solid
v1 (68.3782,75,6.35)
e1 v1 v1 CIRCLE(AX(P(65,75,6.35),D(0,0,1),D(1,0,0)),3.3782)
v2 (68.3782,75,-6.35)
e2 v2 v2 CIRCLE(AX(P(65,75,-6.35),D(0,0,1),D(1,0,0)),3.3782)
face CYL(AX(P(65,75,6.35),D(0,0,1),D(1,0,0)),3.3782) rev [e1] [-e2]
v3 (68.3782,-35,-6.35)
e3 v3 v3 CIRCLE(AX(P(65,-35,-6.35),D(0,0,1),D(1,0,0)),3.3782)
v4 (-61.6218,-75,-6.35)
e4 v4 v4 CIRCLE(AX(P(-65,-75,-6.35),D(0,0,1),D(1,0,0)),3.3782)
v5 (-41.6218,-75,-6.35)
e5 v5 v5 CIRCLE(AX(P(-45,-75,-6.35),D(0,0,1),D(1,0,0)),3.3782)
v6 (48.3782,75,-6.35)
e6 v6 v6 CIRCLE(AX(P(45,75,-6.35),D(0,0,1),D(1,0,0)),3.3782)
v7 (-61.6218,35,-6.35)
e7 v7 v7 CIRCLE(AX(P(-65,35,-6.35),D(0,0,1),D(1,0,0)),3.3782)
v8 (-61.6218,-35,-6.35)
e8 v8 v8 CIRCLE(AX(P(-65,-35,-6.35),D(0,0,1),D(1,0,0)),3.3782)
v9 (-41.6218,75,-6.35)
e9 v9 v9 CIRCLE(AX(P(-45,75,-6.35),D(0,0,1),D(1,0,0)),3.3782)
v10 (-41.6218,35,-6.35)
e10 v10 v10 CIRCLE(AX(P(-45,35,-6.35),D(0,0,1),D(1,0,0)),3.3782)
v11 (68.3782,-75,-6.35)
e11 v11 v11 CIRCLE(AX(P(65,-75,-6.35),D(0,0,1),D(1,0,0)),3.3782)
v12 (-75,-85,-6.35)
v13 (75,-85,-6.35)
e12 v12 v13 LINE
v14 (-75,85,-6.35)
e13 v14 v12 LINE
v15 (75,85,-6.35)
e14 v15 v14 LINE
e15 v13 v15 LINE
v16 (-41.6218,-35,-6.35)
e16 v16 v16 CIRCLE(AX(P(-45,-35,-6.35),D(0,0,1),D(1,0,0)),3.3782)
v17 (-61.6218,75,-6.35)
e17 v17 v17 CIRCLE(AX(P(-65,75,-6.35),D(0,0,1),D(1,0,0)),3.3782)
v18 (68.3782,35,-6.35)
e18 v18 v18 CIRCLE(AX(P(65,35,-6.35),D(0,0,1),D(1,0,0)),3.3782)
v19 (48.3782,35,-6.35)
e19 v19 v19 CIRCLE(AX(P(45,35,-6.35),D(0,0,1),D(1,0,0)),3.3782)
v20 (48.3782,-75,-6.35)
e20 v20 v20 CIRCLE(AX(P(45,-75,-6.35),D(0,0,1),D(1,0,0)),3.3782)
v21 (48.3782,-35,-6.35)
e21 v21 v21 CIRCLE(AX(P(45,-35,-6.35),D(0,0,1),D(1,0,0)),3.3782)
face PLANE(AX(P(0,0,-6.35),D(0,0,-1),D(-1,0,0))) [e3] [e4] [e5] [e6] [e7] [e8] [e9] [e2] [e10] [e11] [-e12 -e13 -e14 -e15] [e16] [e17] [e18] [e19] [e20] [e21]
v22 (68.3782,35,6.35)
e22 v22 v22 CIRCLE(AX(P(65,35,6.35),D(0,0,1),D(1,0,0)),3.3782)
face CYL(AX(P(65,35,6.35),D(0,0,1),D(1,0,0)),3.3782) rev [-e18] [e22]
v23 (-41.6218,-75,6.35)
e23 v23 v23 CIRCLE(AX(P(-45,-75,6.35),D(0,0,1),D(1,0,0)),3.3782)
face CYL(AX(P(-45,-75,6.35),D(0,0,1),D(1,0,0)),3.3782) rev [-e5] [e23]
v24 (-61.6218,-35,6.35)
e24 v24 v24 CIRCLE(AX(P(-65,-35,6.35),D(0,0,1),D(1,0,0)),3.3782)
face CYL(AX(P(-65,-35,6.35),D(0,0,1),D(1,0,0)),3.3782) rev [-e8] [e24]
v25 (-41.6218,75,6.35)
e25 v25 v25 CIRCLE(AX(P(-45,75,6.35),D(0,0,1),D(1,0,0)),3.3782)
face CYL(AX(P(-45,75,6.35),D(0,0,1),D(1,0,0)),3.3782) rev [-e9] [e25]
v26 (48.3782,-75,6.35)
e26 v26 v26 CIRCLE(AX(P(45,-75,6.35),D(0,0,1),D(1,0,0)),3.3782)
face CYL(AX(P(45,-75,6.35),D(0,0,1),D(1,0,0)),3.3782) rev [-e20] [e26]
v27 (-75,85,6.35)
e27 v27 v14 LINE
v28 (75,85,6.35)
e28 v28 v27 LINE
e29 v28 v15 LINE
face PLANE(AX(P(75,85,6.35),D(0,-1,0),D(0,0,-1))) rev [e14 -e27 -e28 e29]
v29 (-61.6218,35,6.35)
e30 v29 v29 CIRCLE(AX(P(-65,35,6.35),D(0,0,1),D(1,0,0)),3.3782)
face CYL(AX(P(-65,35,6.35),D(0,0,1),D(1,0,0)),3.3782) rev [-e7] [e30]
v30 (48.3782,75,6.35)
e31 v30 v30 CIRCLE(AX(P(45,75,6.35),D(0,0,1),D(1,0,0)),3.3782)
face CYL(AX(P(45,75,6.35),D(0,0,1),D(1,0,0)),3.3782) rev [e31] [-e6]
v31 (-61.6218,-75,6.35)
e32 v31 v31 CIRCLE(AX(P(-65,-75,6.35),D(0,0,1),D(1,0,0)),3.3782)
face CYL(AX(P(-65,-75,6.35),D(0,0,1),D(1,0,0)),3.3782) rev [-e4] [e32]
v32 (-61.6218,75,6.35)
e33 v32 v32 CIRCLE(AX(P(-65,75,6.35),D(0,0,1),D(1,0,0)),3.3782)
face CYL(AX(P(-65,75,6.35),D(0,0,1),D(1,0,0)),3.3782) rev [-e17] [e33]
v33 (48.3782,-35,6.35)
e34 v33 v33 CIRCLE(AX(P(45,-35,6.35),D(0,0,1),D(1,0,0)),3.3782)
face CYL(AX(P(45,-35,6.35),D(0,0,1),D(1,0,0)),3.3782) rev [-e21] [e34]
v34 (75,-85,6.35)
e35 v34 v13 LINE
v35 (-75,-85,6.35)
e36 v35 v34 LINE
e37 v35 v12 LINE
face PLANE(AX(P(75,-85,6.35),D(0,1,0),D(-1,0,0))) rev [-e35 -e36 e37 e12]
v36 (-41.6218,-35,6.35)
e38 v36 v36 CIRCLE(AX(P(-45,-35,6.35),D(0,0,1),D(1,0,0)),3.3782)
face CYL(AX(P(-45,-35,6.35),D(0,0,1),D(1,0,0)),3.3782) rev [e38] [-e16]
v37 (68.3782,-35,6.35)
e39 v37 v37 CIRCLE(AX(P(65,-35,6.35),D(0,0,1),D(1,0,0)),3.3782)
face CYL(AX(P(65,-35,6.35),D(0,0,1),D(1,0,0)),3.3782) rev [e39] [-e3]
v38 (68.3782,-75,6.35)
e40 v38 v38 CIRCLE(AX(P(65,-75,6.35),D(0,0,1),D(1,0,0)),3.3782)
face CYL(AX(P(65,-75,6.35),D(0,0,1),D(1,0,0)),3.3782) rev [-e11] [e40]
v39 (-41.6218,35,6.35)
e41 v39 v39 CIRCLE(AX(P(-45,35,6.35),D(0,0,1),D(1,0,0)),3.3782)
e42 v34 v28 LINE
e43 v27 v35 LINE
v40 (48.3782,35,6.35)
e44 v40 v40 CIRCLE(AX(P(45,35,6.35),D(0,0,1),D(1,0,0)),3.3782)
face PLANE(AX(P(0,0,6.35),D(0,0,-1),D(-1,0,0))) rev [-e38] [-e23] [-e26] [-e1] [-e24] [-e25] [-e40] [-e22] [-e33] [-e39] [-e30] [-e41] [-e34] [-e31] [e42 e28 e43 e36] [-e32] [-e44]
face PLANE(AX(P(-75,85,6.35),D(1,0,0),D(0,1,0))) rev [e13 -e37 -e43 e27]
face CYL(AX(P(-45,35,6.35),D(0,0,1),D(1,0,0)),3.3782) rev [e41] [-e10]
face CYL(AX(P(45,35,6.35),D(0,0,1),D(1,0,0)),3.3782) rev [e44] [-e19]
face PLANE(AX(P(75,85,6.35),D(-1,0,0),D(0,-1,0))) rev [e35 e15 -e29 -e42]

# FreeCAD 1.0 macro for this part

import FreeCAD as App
import Part
import Sketcher

V = App.Vector


def add_polygon(sketch, points):
    """Adds a closed chain of lines whose ends are joined by coincident constraints."""
    first, n = sketch.GeometryCount, len(points)
    for a, b in zip(points, points[1:] + points[:1]):
        sketch.addGeometry(Part.LineSegment(App.Vector(*a, 0), App.Vector(*b, 0)), False)
    for i in range(n):
        sketch.addConstraint(Sketcher.Constraint("Coincident", first + i, 2, first + (i + 1) % n, 1))

doc = App.newDocument("Part")
params = doc.addObject("Spreadsheet::Sheet", "Params")
for row, (alias, value) in enumerate([
    ("sketch1_width", "150 mm"),
    ("sketch1_height", "170 mm"),
    ("pad1_length", "12.7 mm"),
    ("hole_diameter", "6.7564 mm"),
], start=1):
    params.set(f"A{row}", alias)
    params.set(f"B{row}", "=" + value)
    params.setAlias(f"B{row}", alias)

body = doc.addObject("PartDesign::Body", "Body")

sketch1 = doc.addObject("Sketcher::SketchObject", "Sketch")
body.addObject(sketch1)
sketch1.AttachmentSupport = (doc.XY_Plane, [""])
sketch1.MapMode = "FlatFace"
add_polygon(sketch1, [(-75, 85), (-75, -85), (75, -85), (75, 85)])
sketch1.addConstraint([
    Sketcher.Constraint("Vertical", 0),
    Sketcher.Constraint("Horizontal", 1),
    Sketcher.Constraint("Vertical", 2),
    Sketcher.Constraint("Horizontal", 3),
    Sketcher.Constraint("Symmetric", 0, 2, 2, 2, -1, 1),
    Sketcher.Constraint("DistanceX", 1, 1, 1, 2, 150.0),
    Sketcher.Constraint("DistanceY", 0, 2, 0, 1, 170.0),
])
sketch1.setExpression("Constraints[9]", "Params.sketch1_width")
sketch1.setExpression("Constraints[10]", "Params.sketch1_height")
pad1 = doc.addObject("PartDesign::Pad", "Pad")
body.addObject(pad1)
pad1.Profile = sketch1
pad1.setExpression("Length", "Params.pad1_length")
pad1.Midplane = True

sketch2 = doc.addObject("Sketcher::SketchObject", "Sketch001")
body.addObject(sketch2)
sketch2.AttachmentSupport = (doc.XY_Plane, [""])
sketch2.MapMode = "FlatFace"
sketch2.AttachmentOffset = App.Placement(V(0, 0, 6.35), App.Rotation())
sketch2.addGeometry([
    Part.Circle(V(65, 75, 0), V(0, 0, 1), 3.4),
    Part.Circle(V(65, 35, 0), V(0, 0, 1), 3.4),
    Part.Circle(V(45, 35, 0), V(0, 0, 1), 3.4),
    Part.Circle(V(45, 75, 0), V(0, 0, 1), 3.4),
    Part.Circle(V(45, -75, 0), V(0, 0, 1), 3.4),
    Part.Circle(V(45, -35, 0), V(0, 0, 1), 3.4),
    Part.Circle(V(65, -35, 0), V(0, 0, 1), 3.4),
    Part.Circle(V(65, -75, 0), V(0, 0, 1), 3.4),
    Part.Circle(V(-65, -75, 0), V(0, 0, 1), 3.4),
    Part.Circle(V(-65, -35, 0), V(0, 0, 1), 3.4),
    Part.Circle(V(-45, -35, 0), V(0, 0, 1), 3.4),
    Part.Circle(V(-45, -75, 0), V(0, 0, 1), 3.4),
    Part.Circle(V(-45, 75, 0), V(0, 0, 1), 3.4),
    Part.Circle(V(-45, 35, 0), V(0, 0, 1), 3.4),
    Part.Circle(V(-65, 35, 0), V(0, 0, 1), 3.4),
    Part.Circle(V(-65, 75, 0), V(0, 0, 1), 3.4),
], False)
sketch2.addConstraint([
    Sketcher.Constraint("Equal", 0, 1),
    Sketcher.Constraint("Equal", 1, 2),
    Sketcher.Constraint("Equal", 2, 3),
    Sketcher.Constraint("Equal", 3, 4),
    Sketcher.Constraint("Equal", 4, 5),
    Sketcher.Constraint("Equal", 5, 6),
    Sketcher.Constraint("Equal", 6, 7),
    Sketcher.Constraint("Equal", 7, 8),
    Sketcher.Constraint("Equal", 8, 9),
    Sketcher.Constraint("Equal", 9, 10),
    Sketcher.Constraint("Equal", 10, 11),
    Sketcher.Constraint("Equal", 11, 12),
    Sketcher.Constraint("Equal", 12, 13),
    Sketcher.Constraint("Equal", 13, 14),
    Sketcher.Constraint("Equal", 14, 15),
    Sketcher.Constraint("Symmetric", 0, 3, 8, 3, -1, 1),
    Sketcher.Constraint("Symmetric", 1, 3, 9, 3, -1, 1),
    Sketcher.Constraint("Symmetric", 2, 3, 10, 3, -1, 1),
    Sketcher.Constraint("Symmetric", 3, 3, 11, 3, -1, 1),
    Sketcher.Constraint("Symmetric", 4, 3, 12, 3, -1, 1),
    Sketcher.Constraint("Symmetric", 5, 3, 13, 3, -1, 1),
    Sketcher.Constraint("Symmetric", 6, 3, 14, 3, -1, 1),
    Sketcher.Constraint("Symmetric", 7, 3, 15, 3, -1, 1),
    Sketcher.Constraint("Symmetric", 7, 3, 8, 3, -2),
    Sketcher.Constraint("Symmetric", 6, 3, 9, 3, -2),
    Sketcher.Constraint("Symmetric", 5, 3, 10, 3, -2),
    Sketcher.Constraint("Symmetric", 4, 3, 11, 3, -2),
    Sketcher.Constraint("Horizontal", 1, 3, 2, 3),
    Sketcher.Constraint("Horizontal", 0, 3, 3, 3),
    Sketcher.Constraint("Vertical", 0, 3, 1, 3),
    Sketcher.Constraint("Vertical", 2, 3, 3, 3),
    Sketcher.Constraint("DistanceX", -1, 1, 0, 3, 65.0),
    Sketcher.Constraint("DistanceY", -1, 1, 0, 3, 75.0),
    Sketcher.Constraint("DistanceY", -1, 1, 1, 3, 35.0),
    Sketcher.Constraint("DistanceX", -1, 1, 2, 3, 45.0),
    Sketcher.Constraint("Diameter", 0, 6.7564),
])
doc.recompute()
hole = doc.addObject("PartDesign::Hole", "Hole")
body.addObject(hole)
hole.Profile = sketch2
hole.ThreadType = "None"
hole.setExpression("Diameter", "Params.hole_diameter")
hole.DepthType = "ThroughAll"

doc.recompute()
